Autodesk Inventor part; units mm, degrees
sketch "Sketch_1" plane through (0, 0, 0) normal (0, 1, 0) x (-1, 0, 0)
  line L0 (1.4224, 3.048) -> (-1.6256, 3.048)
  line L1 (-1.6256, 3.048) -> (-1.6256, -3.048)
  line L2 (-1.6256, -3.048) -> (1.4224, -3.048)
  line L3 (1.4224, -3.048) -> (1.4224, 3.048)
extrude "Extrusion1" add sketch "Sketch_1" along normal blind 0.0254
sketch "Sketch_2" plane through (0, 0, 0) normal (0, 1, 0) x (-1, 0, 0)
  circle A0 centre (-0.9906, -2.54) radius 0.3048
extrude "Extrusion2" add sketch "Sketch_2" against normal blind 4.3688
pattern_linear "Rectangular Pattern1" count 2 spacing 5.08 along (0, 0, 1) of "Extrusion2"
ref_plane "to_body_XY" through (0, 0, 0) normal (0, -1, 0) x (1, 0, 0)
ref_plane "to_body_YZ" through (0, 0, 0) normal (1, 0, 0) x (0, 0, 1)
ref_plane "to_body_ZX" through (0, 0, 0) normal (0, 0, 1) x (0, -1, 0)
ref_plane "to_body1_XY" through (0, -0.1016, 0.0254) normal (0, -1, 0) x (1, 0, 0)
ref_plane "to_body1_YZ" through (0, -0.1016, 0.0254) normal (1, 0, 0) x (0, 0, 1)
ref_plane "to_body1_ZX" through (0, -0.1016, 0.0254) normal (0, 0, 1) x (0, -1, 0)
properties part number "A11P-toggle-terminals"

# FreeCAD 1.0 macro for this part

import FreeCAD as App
import Part
import Sketcher
from FreeCAD import Vector
Q = App.Units.Quantity


def add_polygon(sketch, points):
    """Adds a closed chain of lines whose ends are joined by coincident constraints."""
    first, n = sketch.GeometryCount, len(points)
    for a, b in zip(points, points[1:] + points[:1]):
        sketch.addGeometry(Part.LineSegment(App.Vector(*a, 0), App.Vector(*b, 0)), False)
    for i in range(n):
        sketch.addConstraint(Sketcher.Constraint("Coincident", first + i, 2, first + (i + 1) % n, 1))

doc = App.newDocument("Part")
params = doc.addObject("Spreadsheet::Sheet", "Params")
for row, (alias, value) in enumerate([
    ("sketch1_width", "0.12 in"),
    ("sketch1_height", "0.24 in"),
    ("pad1_length", "0.001 in"),
    ("sketch2_diameter", "0.024 in"),
    ("pad2_length", "0.172 in"),
    ("linearpattern_pitch", "0.2 in"),
], start=1):
    params.set(f"A{row}", alias)
    params.set(f"B{row}", "=" + value)
    params.setAlias(f"B{row}", alias)

body = doc.addObject("PartDesign::Body", "Body")

sketch1 = body.newObject("Sketcher::SketchObject", "Sketch")
sketch1.AttachmentSupport = (doc.getObject("XZ_Plane"), [""])
sketch1.MapMode = "FlatFace"
add_polygon(sketch1, [(-1.4224, -3.048), (-1.4224, 3.048), (1.6256, 3.048), (1.6256, -3.048)])
sketch1.addConstraint(Sketcher.Constraint("Vertical", 0))
sketch1.addConstraint(Sketcher.Constraint("Horizontal", 1))
sketch1.addConstraint(Sketcher.Constraint("Vertical", 2))
sketch1.addConstraint(Sketcher.Constraint("Horizontal", 3))
sketch1.addConstraint(Sketcher.Constraint("DistanceX", 1, 1, 1, 2, Q("0.12 in")))
sketch1.addConstraint(Sketcher.Constraint("DistanceY", 0, 1, 0, 2, Q("0.24 in")))
sketch1.addConstraint(Sketcher.Constraint("DistanceY", -1, 1, 0, 2, Q("0.12 in")))
sketch1.addConstraint(Sketcher.Constraint("DistanceX", 0, 2, -1, 1, Q("0.056 in")))
sketch1.setExpression("Constraints[8]", "Params.sketch1_width")
sketch1.setExpression("Constraints[9]", "Params.sketch1_height")
pad1 = body.newObject("PartDesign::Pad", "Pad")
pad1.Profile = sketch1
pad1.setExpression("Length", "Params.pad1_length")
pad1.Reversed = True

sketch2 = body.newObject("Sketcher::SketchObject", "Sketch001")
sketch2.AttachmentSupport = (doc.getObject("XZ_Plane"), [""])
sketch2.MapMode = "FlatFace"
sketch2.addGeometry(Part.Circle(Vector(0.9906, -2.54, 0), Vector(0, 0, 1), 0.3048), False)
sketch2.addConstraint(Sketcher.Constraint("Diameter", 0, Q("0.024 in")))
sketch2.addConstraint(Sketcher.Constraint("DistanceY", 0, 3, -1, 1, Q("0.1 in")))
sketch2.addConstraint(Sketcher.Constraint("DistanceX", -1, 1, 0, 3, Q("0.039 in")))
sketch2.setExpression("Constraints[0]", "Params.sketch2_diameter")
pad2 = body.newObject("PartDesign::Pad", "Pad001")
pad2.Profile = sketch2
pad2.setExpression("Length", "Params.pad2_length")
doc.recompute()

linearpattern = body.newObject("PartDesign::LinearPattern", "LinearPattern")
linearpattern.Originals = [pad2]
linearpattern.Direction = (doc.getObject("Z_Axis"), [""])
linearpattern.Mode = "offset"
linearpattern.setExpression("Offset", "Params.linearpattern_pitch")
linearpattern.Occurrences = 2
body.Tip = linearpattern

doc.recompute()
